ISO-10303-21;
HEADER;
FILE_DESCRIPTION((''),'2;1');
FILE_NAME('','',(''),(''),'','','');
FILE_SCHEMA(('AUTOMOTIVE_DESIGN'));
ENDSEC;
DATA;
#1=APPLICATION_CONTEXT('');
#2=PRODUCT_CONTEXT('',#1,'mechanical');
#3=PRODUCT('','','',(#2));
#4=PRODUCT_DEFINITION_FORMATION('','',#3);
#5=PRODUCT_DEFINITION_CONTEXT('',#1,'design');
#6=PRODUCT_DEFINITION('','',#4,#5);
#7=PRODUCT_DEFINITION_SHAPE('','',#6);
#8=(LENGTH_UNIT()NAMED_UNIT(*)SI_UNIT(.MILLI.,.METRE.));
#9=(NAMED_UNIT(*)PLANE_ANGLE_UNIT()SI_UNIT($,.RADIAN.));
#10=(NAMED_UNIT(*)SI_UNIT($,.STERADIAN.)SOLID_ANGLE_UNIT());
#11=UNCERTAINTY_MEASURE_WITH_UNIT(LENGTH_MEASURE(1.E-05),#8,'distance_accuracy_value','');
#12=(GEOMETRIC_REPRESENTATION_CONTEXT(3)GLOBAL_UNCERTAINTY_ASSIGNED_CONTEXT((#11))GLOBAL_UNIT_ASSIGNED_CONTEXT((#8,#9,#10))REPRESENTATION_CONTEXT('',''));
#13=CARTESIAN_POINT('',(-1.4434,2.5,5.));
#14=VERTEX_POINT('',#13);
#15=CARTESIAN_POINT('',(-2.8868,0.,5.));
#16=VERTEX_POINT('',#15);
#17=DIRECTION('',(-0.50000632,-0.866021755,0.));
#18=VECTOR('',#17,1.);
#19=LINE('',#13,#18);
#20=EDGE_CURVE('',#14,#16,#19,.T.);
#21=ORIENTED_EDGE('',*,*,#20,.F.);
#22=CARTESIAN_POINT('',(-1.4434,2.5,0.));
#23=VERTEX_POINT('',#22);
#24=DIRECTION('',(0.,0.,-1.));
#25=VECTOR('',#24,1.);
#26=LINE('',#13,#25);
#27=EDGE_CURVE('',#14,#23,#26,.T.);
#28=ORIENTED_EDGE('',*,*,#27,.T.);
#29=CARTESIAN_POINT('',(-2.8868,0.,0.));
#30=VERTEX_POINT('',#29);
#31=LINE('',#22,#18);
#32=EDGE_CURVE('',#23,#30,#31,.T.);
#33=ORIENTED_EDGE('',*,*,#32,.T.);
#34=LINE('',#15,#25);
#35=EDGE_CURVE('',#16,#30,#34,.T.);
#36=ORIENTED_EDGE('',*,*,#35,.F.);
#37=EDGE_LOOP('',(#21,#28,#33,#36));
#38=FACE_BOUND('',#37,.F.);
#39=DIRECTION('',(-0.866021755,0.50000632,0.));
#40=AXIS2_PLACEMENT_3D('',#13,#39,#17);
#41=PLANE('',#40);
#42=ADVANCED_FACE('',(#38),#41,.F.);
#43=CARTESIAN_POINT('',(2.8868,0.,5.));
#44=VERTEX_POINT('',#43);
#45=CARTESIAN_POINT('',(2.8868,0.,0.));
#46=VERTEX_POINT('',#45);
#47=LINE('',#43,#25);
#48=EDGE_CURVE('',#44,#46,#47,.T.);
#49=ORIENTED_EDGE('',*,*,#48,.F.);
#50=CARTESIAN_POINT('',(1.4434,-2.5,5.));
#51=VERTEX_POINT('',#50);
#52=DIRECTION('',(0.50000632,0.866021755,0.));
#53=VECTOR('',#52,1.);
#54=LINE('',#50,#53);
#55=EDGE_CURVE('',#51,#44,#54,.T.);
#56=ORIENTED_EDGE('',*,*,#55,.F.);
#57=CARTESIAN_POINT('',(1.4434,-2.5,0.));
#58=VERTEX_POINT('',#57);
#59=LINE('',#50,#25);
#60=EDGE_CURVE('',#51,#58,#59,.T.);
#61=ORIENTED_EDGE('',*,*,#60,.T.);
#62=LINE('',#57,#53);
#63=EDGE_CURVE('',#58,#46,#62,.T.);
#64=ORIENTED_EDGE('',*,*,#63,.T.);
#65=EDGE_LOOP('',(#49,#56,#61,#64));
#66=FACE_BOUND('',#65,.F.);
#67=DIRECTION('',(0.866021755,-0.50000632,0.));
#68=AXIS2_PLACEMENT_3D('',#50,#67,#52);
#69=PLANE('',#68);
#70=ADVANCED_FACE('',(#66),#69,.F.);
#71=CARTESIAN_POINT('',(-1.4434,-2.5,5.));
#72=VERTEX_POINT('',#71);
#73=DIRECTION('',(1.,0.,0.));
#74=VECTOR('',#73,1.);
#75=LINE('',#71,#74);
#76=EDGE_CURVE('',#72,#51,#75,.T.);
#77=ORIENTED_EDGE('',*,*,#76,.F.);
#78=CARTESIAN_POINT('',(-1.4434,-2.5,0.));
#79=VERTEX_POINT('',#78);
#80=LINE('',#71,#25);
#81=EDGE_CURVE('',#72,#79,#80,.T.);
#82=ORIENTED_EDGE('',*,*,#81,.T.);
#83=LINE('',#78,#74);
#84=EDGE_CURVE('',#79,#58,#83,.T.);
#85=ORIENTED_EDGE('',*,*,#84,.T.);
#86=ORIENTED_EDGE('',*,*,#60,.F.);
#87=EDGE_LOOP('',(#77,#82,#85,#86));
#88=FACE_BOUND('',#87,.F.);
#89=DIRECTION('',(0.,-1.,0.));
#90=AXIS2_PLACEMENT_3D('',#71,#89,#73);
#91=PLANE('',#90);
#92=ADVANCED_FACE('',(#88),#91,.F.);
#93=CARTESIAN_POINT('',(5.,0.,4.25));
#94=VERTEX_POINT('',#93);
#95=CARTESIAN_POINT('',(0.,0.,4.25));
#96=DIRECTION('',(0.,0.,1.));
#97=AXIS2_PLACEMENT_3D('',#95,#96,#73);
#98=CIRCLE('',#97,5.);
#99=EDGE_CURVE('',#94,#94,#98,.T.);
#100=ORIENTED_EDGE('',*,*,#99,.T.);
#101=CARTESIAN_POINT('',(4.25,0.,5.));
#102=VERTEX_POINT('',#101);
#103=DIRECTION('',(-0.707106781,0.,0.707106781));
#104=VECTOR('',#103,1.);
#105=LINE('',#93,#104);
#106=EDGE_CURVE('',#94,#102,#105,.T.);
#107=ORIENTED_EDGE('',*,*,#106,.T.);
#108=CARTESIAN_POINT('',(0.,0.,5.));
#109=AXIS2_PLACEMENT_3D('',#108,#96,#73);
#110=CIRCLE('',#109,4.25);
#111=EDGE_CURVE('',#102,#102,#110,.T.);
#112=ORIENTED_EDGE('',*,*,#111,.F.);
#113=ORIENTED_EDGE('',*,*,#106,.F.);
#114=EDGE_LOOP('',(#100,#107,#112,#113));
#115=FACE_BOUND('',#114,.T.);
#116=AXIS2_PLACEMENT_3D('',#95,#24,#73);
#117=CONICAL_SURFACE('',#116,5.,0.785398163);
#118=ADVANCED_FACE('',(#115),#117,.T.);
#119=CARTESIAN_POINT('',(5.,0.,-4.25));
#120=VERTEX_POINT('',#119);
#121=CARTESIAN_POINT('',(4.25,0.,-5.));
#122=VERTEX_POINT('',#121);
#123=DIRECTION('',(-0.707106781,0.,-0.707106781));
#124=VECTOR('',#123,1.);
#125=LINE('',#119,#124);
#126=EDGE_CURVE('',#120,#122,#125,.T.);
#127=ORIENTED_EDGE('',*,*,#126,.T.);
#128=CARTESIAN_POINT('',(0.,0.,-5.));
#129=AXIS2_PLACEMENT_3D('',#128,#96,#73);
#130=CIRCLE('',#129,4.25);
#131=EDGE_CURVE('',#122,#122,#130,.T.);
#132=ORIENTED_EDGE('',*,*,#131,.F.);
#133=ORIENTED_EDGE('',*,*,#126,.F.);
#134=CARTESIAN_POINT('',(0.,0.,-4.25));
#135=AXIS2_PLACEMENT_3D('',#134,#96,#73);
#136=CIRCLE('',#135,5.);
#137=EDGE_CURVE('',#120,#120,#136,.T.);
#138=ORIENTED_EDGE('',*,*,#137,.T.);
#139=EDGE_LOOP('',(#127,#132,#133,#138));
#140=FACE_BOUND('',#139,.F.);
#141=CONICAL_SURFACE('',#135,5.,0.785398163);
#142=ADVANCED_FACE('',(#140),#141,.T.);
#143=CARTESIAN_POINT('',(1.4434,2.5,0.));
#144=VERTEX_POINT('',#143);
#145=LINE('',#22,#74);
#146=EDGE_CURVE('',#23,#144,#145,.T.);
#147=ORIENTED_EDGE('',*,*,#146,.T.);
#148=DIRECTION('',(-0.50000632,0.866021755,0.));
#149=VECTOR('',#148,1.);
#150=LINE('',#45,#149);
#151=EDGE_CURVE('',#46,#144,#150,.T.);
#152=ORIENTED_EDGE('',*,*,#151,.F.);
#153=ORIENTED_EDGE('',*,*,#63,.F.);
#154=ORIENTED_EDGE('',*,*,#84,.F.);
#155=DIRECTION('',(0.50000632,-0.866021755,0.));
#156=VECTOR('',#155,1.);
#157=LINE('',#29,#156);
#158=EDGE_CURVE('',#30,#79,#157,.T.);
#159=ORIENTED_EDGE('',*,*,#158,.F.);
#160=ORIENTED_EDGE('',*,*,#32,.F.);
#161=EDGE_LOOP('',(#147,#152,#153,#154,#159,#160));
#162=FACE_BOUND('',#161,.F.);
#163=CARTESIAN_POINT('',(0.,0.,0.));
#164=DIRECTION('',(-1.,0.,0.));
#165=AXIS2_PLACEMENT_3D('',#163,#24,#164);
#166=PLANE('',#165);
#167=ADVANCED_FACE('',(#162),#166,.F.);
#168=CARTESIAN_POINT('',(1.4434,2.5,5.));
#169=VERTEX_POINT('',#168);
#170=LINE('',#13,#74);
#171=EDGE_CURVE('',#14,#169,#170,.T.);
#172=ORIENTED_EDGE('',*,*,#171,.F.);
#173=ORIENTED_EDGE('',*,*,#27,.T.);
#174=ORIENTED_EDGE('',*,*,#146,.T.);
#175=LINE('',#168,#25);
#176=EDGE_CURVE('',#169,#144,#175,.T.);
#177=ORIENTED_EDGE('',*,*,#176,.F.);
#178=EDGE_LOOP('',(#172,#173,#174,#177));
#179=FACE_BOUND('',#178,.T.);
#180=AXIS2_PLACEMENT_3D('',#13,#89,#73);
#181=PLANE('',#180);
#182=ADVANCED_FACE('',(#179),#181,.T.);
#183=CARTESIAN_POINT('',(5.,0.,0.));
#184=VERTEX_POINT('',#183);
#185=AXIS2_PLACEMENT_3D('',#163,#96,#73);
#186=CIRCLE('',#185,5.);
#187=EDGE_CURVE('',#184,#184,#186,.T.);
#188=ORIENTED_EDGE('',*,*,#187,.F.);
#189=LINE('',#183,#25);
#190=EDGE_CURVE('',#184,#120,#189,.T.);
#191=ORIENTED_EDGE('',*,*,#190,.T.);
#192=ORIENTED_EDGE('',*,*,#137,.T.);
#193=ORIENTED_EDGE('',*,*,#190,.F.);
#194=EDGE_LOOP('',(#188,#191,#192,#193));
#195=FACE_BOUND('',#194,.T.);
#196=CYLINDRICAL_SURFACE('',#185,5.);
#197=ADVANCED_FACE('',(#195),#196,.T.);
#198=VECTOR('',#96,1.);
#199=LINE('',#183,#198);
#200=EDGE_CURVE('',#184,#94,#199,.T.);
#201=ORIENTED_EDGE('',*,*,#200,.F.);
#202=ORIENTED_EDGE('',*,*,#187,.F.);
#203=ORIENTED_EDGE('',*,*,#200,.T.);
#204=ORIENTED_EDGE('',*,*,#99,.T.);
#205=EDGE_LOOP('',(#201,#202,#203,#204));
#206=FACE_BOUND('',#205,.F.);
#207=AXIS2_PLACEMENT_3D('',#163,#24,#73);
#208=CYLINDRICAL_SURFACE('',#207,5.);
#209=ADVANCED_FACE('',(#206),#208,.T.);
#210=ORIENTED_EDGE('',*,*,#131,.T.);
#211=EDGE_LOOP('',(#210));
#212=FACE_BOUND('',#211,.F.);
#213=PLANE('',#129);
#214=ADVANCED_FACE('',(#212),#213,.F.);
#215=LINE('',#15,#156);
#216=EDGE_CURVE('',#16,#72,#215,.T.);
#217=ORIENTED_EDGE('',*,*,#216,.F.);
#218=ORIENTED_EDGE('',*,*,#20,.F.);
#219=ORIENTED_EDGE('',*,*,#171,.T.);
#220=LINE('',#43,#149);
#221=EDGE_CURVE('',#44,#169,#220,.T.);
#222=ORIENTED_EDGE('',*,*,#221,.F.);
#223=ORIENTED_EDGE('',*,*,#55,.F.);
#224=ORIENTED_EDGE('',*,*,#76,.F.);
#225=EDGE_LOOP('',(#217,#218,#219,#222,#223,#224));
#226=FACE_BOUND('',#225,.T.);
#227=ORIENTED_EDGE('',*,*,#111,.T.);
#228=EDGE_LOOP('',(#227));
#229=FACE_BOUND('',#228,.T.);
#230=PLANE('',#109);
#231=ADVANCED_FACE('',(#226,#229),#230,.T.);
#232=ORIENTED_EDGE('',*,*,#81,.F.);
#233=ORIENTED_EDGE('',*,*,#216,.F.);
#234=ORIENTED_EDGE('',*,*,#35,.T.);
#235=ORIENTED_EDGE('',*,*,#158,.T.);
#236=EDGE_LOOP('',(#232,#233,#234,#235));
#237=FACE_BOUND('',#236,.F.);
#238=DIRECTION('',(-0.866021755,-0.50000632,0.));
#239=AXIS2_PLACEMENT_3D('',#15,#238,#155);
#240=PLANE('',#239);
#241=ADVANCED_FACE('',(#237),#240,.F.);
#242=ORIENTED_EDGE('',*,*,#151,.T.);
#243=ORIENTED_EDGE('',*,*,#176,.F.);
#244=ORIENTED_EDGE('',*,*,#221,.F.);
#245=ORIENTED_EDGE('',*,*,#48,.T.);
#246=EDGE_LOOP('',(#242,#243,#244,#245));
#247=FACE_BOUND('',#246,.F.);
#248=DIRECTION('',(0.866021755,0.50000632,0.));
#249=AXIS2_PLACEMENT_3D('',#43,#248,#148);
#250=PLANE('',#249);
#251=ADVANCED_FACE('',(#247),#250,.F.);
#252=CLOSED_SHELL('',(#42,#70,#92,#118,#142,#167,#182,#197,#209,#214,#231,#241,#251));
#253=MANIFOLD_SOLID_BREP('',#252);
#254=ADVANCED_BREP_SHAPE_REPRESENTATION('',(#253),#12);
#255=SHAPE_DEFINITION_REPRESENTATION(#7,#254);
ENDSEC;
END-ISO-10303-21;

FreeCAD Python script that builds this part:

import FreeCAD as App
import Part
import Sketcher
Q = App.Units.Quantity


def edges_at(feature, points):
    """Names of the edges that pass closest to the given points."""
    edges = feature.Shape.Edges
    near = lambda p: min(range(len(edges)), key=lambda i: edges[i].distToShape(Part.Vertex(*p))[0])
    return sorted({f"Edge{near(p) + 1}" for p in points})

doc = App.newDocument("Part")
body = doc.addObject("PartDesign::Body", "Body")

sketch1 = body.newObject("Sketcher::SketchObject", "Sketch")
sketch1.AttachmentSupport = (doc.getObject("XY_Plane"), [""])
sketch1.MapMode = "FlatFace"
sketch1.addGeometry(Part.Circle(App.Vector(0, 0, 0), App.Vector(0, 0, 1), 5), False)
sketch1.addConstraint([
    Sketcher.Constraint("Coincident", 0, 3, -1, 1),
    Sketcher.Constraint("Diameter", 0, 10.0),
])
pad1 = body.newObject("PartDesign::Pad", "Pad")
pad1.Profile = sketch1
pad1.Length = 10
pad1.Midplane = True
doc.recompute()

chamfer = body.newObject("PartDesign::Chamfer", "Chamfer")
chamfer.Base = (pad1, edges_at(pad1, [(-5, 0, -5), (-5, 0, 5)]))
chamfer.Size = 0.75

sketch2 = body.newObject("Sketcher::SketchObject", "Sketch001")
sketch2.AttachmentSupport = (doc.getObject("XY_Plane"), [""])
sketch2.MapMode = "FlatFace"
sketch2.AttachmentOffset = App.Placement(App.Vector(0, 0, 5), App.Rotation())
sketch2.addGeometry([
    Part.LineSegment(App.Vector(1.4434, 2.5, 0), App.Vector(-1.4434, 2.5, 0)),
    Part.LineSegment(App.Vector(-1.4434, 2.5, 0), App.Vector(-2.8868, 0, 0)),
    Part.LineSegment(App.Vector(-2.8868, 0, 0), App.Vector(-1.4434, -2.5, 0)),
    Part.LineSegment(App.Vector(-1.4434, -2.5, 0), App.Vector(1.4434, -2.5, 0)),
    Part.LineSegment(App.Vector(1.4434, -2.5, 0), App.Vector(2.8868, 0, 0)),
    Part.LineSegment(App.Vector(2.8868, 0, 0), App.Vector(1.4434, 2.5, 0)),
], False)
sketch2.addConstraint([
    Sketcher.Constraint("Coincident", 0, 2, 1, 1),
    Sketcher.Constraint("Coincident", 1, 2, 2, 1),
    Sketcher.Constraint("Coincident", 2, 2, 3, 1),
    Sketcher.Constraint("Coincident", 3, 2, 4, 1),
    Sketcher.Constraint("Coincident", 4, 2, 5, 1),
    Sketcher.Constraint("Coincident", 5, 2, 0, 1),
    Sketcher.Constraint("Horizontal", 0),
    Sketcher.Constraint("Horizontal", 3),
    Sketcher.Constraint("Symmetric", 0, 2, 3, 2, -1, 1),
    Sketcher.Constraint("Symmetric", 1, 2, 4, 2, -1, 1),
    Sketcher.Constraint("PointOnObject", 1, 2, -1),
    Sketcher.Constraint("Parallel", 2, 5),
    Sketcher.Constraint("Vertical", 0, 2, 2, 2),
    Sketcher.Constraint("Angle", 1, Q("-120.0004 deg")),
    Sketcher.Constraint("DistanceY", 2, 2, 0, 2, 5.0),
    Sketcher.Constraint("DistanceX", 0, 2, 0, 1, 2.8868),
])
pocket1 = body.newObject("PartDesign::Pocket", "Pocket")
pocket1.Profile = sketch2
pocket1.Length = 5

doc.recompute()
